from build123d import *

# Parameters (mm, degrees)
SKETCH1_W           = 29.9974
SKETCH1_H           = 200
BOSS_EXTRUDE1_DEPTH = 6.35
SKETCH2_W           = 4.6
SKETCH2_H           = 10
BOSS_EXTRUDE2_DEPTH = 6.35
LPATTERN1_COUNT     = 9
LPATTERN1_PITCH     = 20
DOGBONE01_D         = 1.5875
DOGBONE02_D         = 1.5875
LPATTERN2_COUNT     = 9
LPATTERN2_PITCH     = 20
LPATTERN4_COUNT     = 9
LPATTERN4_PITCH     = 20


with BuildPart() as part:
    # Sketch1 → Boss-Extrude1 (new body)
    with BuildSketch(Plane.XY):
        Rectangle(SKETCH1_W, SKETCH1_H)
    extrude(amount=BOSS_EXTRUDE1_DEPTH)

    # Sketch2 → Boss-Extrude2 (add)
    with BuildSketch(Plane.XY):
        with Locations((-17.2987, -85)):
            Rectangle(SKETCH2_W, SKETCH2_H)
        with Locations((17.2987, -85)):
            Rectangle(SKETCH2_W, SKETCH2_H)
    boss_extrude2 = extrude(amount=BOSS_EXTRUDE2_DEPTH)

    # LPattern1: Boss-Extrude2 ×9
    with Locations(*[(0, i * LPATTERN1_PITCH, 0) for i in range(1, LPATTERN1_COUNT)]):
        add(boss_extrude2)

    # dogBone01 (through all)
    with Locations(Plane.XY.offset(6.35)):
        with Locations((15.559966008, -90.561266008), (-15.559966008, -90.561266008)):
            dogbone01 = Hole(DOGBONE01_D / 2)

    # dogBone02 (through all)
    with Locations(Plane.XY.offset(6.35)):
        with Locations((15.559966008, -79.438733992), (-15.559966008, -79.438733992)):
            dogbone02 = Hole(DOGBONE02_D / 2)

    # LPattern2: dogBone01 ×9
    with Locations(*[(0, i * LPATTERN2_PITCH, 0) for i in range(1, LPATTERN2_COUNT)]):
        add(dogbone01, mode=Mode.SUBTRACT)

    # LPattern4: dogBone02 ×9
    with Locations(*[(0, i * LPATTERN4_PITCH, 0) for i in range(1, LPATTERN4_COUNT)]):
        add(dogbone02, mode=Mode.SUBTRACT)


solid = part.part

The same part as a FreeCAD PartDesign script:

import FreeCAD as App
import Part
import Sketcher

V = App.Vector


def add_polygon(sketch, points):
    """Adds a closed chain of lines whose ends are joined by coincident constraints."""
    first, n = sketch.GeometryCount, len(points)
    for a, b in zip(points, points[1:] + points[:1]):
        sketch.addGeometry(Part.LineSegment(App.Vector(*a, 0), App.Vector(*b, 0)), False)
    for i in range(n):
        sketch.addConstraint(Sketcher.Constraint("Coincident", first + i, 2, first + (i + 1) % n, 1))

doc = App.newDocument("Part")
body = doc.addObject("PartDesign::Body", "Body")

sketch1 = body.newObject("Sketcher::SketchObject", "Sketch")
sketch1.AttachmentSupport = (doc.getObject("XY_Plane"), [""])
sketch1.MapMode = "FlatFace"
add_polygon(sketch1, [(-15, 100), (-15, -100), (15, -100), (15, 100)])
sketch1.addConstraint([
    Sketcher.Constraint("Vertical", 0),
    Sketcher.Constraint("Horizontal", 1),
    Sketcher.Constraint("Vertical", 2),
    Sketcher.Constraint("Horizontal", 3),
    Sketcher.Constraint("Symmetric", 0, 2, 2, 2, -1, 1),
    Sketcher.Constraint("DistanceY", 0, 2, 0, 1, 200.0),
    Sketcher.Constraint("DistanceX", 1, 1, 1, 2, 29.9974),
])
pad1 = body.newObject("PartDesign::Pad", "Pad")
pad1.Profile = sketch1
pad1.Length = 6.35

sketch2 = body.newObject("Sketcher::SketchObject", "Sketch001")
sketch2.AttachmentSupport = (doc.getObject("XY_Plane"), [""])
sketch2.MapMode = "FlatFace"
add_polygon(sketch2, [(-19.6, -80), (-19.6, -90), (-15, -90), (-15, -80)])
add_polygon(sketch2, [(15, -80), (15, -90), (19.6, -90), (19.6, -80)])
sketch2.addConstraint([
    Sketcher.Constraint("Vertical", 0),
    Sketcher.Constraint("Horizontal", 1),
    Sketcher.Constraint("Vertical", 2),
    Sketcher.Constraint("Horizontal", 3),
    Sketcher.Constraint("Vertical", 4),
    Sketcher.Constraint("Horizontal", 5),
    Sketcher.Constraint("Vertical", 6),
    Sketcher.Constraint("Horizontal", 7),
    Sketcher.Constraint("Symmetric", 1, 2, 4, 2, -2),
    Sketcher.Constraint("Symmetric", 3, 2, 6, 2, -2),
    Sketcher.Constraint("DistanceY", 0, 2, 0, 1, 10.0),
    Sketcher.Constraint("DistanceX", 1, 1, 1, 2, 4.6),
    Sketcher.Constraint("DistanceY", 0, 2, -1, 1, 90.0),
    Sketcher.Constraint("DistanceX", 0, 2, -1, 1, 19.5987),
])
pad2 = body.newObject("PartDesign::Pad", "Pad001")
pad2.Profile = sketch2
pad2.Length = 6.35
doc.recompute()

linearpattern = body.newObject("PartDesign::LinearPattern", "LinearPattern")
linearpattern.Originals = [pad2]
linearpattern.Direction = (doc.getObject("Y_Axis"), [""])
linearpattern.Mode = "offset"
linearpattern.Offset = 20
linearpattern.Occurrences = 9
body.Tip = linearpattern

sketch3 = body.newObject("Sketcher::SketchObject", "Sketch002")
sketch3.AttachmentSupport = (doc.getObject("XY_Plane"), [""])
sketch3.MapMode = "FlatFace"
sketch3.AttachmentOffset = App.Placement(V(0, 0, 6.35), App.Rotation())
sketch3.addGeometry([
    Part.Circle(V(15.6, -90.6, 0), V(0, 0, 1), 0.8),
    Part.Circle(V(-15.6, -90.6, 0), V(0, 0, 1), 0.8),
], False)
sketch3.addConstraint([
    Sketcher.Constraint("Equal", 0, 1),
    Sketcher.Constraint("Symmetric", 0, 3, 1, 3, -2),
    Sketcher.Constraint("Diameter", 0, 1.5875),
    Sketcher.Constraint("DistanceX", -1, 1, 0, 3, 15.559966),
    Sketcher.Constraint("DistanceY", 0, 3, -1, 1, 90.561266),
])
doc.recompute()
hole = body.newObject("PartDesign::Hole", "Hole")
hole.Profile = sketch3
hole.ThreadType = "None"
hole.Diameter = 1.5875
hole.DepthType = "ThroughAll"

sketch4 = body.newObject("Sketcher::SketchObject", "Sketch003")
sketch4.AttachmentSupport = (doc.getObject("XY_Plane"), [""])
sketch4.MapMode = "FlatFace"
sketch4.AttachmentOffset = App.Placement(V(0, 0, 6.35), App.Rotation())
sketch4.addGeometry([
    Part.Circle(V(15.6, -79.4, 0), V(0, 0, 1), 0.8),
    Part.Circle(V(-15.6, -79.4, 0), V(0, 0, 1), 0.8),
], False)
sketch4.addConstraint([
    Sketcher.Constraint("Equal", 0, 1),
    Sketcher.Constraint("Symmetric", 0, 3, 1, 3, -2),
    Sketcher.Constraint("Diameter", 0, 1.5875),
    Sketcher.Constraint("DistanceX", -1, 1, 0, 3, 15.559966),
    Sketcher.Constraint("DistanceY", 0, 3, -1, 1, 79.438734),
])
doc.recompute()
hole2 = body.newObject("PartDesign::Hole", "Hole001")
hole2.Profile = sketch4
hole2.ThreadType = "None"
hole2.Diameter = 1.5875
hole2.DepthType = "ThroughAll"
doc.recompute()

linearpattern2 = body.newObject("PartDesign::LinearPattern", "LinearPattern001")
linearpattern2.Originals = [hole]
linearpattern2.Direction = (doc.getObject("Y_Axis"), [""])
linearpattern2.Mode = "offset"
linearpattern2.Offset = 20
linearpattern2.Occurrences = 9
body.Tip = linearpattern2
doc.recompute()

linearpattern3 = body.newObject("PartDesign::LinearPattern", "LinearPattern002")
linearpattern3.Originals = [hole2]
linearpattern3.Direction = (doc.getObject("Y_Axis"), [""])
linearpattern3.Mode = "offset"
linearpattern3.Offset = 20
linearpattern3.Occurrences = 9
body.Tip = linearpattern3

doc.recompute()
